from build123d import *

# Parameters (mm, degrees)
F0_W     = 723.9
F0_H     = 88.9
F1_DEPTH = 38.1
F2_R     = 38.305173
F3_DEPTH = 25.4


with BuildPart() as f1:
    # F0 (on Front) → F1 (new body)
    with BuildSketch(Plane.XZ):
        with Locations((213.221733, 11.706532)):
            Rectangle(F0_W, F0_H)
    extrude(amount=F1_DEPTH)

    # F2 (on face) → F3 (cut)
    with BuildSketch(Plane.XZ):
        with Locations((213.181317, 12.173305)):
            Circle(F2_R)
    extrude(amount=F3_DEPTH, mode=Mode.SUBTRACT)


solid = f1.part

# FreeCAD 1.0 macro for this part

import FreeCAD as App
import Part
import Sketcher
Q = App.Units.Quantity

doc = App.newDocument("Part")
body = doc.addObject("PartDesign::Body", "Body")

# Sketch on XZ plane
sketch1 = body.newObject("Sketcher::SketchObject", "Sketch")
sketch1.AttachmentSupport = (doc.getObject("XZ_Plane"), [""])
sketch1.MapMode = "FlatFace"
sketch1.addGeometry([
    Part.LineSegment(App.Vector(-149, 56, 0), App.Vector(-149, -33, 0)),
    Part.LineSegment(App.Vector(-149, -33, 0), App.Vector(575, -33, 0)),
    Part.LineSegment(App.Vector(575, -33, 0), App.Vector(575, 56, 0)),
    Part.LineSegment(App.Vector(575, 56, 0), App.Vector(-149, 56, 0)),
], False)
sketch1.addConstraint([
    Sketcher.Constraint("Coincident", 0, 2, 1, 1),
    Sketcher.Constraint("Coincident", 1, 2, 2, 1),
    Sketcher.Constraint("Coincident", 2, 2, 3, 1),
    Sketcher.Constraint("Coincident", 3, 2, 0, 1),
    Sketcher.Constraint("Vertical", 0),
    Sketcher.Constraint("Horizontal", 1),
    Sketcher.Constraint("Vertical", 2),
    Sketcher.Constraint("Horizontal", 3),
    Sketcher.Constraint("DistanceX", 1, 1, 1, 2, Q("28.5 in")),
    Sketcher.Constraint("DistanceY", 0, 2, 0, 1, Q("3.5 in")),
    Sketcher.Constraint("DistanceX", 0, 2, -1, 1, 148.728267),
    Sketcher.Constraint("DistanceY", 0, 2, -1, 1, 32.743468),
])
pad1 = body.newObject("PartDesign::Pad", "Pad")
pad1.Profile = sketch1
pad1.Length = Q("1.5 in")

# Sketch on XZ plane
sketch2 = body.newObject("Sketcher::SketchObject", "Sketch001")
sketch2.AttachmentSupport = (doc.getObject("XZ_Plane"), [""])
sketch2.MapMode = "FlatFace"
sketch2.addGeometry(Part.Circle(App.Vector(213, 12, 0), App.Vector(0, 0, 1), 38), False)
sketch2.addConstraint([
    Sketcher.Constraint("Diameter", 0, 76.610346),
    Sketcher.Constraint("DistanceX", -1, 1, 0, 3, 213.181317),
    Sketcher.Constraint("DistanceY", -1, 1, 0, 3, 12.173305),
])
pocket1 = body.newObject("PartDesign::Pocket", "Pocket")
pocket1.Profile = sketch2
pocket1.Length = Q("1 in")
pocket1.Reversed = True

doc.recompute()
